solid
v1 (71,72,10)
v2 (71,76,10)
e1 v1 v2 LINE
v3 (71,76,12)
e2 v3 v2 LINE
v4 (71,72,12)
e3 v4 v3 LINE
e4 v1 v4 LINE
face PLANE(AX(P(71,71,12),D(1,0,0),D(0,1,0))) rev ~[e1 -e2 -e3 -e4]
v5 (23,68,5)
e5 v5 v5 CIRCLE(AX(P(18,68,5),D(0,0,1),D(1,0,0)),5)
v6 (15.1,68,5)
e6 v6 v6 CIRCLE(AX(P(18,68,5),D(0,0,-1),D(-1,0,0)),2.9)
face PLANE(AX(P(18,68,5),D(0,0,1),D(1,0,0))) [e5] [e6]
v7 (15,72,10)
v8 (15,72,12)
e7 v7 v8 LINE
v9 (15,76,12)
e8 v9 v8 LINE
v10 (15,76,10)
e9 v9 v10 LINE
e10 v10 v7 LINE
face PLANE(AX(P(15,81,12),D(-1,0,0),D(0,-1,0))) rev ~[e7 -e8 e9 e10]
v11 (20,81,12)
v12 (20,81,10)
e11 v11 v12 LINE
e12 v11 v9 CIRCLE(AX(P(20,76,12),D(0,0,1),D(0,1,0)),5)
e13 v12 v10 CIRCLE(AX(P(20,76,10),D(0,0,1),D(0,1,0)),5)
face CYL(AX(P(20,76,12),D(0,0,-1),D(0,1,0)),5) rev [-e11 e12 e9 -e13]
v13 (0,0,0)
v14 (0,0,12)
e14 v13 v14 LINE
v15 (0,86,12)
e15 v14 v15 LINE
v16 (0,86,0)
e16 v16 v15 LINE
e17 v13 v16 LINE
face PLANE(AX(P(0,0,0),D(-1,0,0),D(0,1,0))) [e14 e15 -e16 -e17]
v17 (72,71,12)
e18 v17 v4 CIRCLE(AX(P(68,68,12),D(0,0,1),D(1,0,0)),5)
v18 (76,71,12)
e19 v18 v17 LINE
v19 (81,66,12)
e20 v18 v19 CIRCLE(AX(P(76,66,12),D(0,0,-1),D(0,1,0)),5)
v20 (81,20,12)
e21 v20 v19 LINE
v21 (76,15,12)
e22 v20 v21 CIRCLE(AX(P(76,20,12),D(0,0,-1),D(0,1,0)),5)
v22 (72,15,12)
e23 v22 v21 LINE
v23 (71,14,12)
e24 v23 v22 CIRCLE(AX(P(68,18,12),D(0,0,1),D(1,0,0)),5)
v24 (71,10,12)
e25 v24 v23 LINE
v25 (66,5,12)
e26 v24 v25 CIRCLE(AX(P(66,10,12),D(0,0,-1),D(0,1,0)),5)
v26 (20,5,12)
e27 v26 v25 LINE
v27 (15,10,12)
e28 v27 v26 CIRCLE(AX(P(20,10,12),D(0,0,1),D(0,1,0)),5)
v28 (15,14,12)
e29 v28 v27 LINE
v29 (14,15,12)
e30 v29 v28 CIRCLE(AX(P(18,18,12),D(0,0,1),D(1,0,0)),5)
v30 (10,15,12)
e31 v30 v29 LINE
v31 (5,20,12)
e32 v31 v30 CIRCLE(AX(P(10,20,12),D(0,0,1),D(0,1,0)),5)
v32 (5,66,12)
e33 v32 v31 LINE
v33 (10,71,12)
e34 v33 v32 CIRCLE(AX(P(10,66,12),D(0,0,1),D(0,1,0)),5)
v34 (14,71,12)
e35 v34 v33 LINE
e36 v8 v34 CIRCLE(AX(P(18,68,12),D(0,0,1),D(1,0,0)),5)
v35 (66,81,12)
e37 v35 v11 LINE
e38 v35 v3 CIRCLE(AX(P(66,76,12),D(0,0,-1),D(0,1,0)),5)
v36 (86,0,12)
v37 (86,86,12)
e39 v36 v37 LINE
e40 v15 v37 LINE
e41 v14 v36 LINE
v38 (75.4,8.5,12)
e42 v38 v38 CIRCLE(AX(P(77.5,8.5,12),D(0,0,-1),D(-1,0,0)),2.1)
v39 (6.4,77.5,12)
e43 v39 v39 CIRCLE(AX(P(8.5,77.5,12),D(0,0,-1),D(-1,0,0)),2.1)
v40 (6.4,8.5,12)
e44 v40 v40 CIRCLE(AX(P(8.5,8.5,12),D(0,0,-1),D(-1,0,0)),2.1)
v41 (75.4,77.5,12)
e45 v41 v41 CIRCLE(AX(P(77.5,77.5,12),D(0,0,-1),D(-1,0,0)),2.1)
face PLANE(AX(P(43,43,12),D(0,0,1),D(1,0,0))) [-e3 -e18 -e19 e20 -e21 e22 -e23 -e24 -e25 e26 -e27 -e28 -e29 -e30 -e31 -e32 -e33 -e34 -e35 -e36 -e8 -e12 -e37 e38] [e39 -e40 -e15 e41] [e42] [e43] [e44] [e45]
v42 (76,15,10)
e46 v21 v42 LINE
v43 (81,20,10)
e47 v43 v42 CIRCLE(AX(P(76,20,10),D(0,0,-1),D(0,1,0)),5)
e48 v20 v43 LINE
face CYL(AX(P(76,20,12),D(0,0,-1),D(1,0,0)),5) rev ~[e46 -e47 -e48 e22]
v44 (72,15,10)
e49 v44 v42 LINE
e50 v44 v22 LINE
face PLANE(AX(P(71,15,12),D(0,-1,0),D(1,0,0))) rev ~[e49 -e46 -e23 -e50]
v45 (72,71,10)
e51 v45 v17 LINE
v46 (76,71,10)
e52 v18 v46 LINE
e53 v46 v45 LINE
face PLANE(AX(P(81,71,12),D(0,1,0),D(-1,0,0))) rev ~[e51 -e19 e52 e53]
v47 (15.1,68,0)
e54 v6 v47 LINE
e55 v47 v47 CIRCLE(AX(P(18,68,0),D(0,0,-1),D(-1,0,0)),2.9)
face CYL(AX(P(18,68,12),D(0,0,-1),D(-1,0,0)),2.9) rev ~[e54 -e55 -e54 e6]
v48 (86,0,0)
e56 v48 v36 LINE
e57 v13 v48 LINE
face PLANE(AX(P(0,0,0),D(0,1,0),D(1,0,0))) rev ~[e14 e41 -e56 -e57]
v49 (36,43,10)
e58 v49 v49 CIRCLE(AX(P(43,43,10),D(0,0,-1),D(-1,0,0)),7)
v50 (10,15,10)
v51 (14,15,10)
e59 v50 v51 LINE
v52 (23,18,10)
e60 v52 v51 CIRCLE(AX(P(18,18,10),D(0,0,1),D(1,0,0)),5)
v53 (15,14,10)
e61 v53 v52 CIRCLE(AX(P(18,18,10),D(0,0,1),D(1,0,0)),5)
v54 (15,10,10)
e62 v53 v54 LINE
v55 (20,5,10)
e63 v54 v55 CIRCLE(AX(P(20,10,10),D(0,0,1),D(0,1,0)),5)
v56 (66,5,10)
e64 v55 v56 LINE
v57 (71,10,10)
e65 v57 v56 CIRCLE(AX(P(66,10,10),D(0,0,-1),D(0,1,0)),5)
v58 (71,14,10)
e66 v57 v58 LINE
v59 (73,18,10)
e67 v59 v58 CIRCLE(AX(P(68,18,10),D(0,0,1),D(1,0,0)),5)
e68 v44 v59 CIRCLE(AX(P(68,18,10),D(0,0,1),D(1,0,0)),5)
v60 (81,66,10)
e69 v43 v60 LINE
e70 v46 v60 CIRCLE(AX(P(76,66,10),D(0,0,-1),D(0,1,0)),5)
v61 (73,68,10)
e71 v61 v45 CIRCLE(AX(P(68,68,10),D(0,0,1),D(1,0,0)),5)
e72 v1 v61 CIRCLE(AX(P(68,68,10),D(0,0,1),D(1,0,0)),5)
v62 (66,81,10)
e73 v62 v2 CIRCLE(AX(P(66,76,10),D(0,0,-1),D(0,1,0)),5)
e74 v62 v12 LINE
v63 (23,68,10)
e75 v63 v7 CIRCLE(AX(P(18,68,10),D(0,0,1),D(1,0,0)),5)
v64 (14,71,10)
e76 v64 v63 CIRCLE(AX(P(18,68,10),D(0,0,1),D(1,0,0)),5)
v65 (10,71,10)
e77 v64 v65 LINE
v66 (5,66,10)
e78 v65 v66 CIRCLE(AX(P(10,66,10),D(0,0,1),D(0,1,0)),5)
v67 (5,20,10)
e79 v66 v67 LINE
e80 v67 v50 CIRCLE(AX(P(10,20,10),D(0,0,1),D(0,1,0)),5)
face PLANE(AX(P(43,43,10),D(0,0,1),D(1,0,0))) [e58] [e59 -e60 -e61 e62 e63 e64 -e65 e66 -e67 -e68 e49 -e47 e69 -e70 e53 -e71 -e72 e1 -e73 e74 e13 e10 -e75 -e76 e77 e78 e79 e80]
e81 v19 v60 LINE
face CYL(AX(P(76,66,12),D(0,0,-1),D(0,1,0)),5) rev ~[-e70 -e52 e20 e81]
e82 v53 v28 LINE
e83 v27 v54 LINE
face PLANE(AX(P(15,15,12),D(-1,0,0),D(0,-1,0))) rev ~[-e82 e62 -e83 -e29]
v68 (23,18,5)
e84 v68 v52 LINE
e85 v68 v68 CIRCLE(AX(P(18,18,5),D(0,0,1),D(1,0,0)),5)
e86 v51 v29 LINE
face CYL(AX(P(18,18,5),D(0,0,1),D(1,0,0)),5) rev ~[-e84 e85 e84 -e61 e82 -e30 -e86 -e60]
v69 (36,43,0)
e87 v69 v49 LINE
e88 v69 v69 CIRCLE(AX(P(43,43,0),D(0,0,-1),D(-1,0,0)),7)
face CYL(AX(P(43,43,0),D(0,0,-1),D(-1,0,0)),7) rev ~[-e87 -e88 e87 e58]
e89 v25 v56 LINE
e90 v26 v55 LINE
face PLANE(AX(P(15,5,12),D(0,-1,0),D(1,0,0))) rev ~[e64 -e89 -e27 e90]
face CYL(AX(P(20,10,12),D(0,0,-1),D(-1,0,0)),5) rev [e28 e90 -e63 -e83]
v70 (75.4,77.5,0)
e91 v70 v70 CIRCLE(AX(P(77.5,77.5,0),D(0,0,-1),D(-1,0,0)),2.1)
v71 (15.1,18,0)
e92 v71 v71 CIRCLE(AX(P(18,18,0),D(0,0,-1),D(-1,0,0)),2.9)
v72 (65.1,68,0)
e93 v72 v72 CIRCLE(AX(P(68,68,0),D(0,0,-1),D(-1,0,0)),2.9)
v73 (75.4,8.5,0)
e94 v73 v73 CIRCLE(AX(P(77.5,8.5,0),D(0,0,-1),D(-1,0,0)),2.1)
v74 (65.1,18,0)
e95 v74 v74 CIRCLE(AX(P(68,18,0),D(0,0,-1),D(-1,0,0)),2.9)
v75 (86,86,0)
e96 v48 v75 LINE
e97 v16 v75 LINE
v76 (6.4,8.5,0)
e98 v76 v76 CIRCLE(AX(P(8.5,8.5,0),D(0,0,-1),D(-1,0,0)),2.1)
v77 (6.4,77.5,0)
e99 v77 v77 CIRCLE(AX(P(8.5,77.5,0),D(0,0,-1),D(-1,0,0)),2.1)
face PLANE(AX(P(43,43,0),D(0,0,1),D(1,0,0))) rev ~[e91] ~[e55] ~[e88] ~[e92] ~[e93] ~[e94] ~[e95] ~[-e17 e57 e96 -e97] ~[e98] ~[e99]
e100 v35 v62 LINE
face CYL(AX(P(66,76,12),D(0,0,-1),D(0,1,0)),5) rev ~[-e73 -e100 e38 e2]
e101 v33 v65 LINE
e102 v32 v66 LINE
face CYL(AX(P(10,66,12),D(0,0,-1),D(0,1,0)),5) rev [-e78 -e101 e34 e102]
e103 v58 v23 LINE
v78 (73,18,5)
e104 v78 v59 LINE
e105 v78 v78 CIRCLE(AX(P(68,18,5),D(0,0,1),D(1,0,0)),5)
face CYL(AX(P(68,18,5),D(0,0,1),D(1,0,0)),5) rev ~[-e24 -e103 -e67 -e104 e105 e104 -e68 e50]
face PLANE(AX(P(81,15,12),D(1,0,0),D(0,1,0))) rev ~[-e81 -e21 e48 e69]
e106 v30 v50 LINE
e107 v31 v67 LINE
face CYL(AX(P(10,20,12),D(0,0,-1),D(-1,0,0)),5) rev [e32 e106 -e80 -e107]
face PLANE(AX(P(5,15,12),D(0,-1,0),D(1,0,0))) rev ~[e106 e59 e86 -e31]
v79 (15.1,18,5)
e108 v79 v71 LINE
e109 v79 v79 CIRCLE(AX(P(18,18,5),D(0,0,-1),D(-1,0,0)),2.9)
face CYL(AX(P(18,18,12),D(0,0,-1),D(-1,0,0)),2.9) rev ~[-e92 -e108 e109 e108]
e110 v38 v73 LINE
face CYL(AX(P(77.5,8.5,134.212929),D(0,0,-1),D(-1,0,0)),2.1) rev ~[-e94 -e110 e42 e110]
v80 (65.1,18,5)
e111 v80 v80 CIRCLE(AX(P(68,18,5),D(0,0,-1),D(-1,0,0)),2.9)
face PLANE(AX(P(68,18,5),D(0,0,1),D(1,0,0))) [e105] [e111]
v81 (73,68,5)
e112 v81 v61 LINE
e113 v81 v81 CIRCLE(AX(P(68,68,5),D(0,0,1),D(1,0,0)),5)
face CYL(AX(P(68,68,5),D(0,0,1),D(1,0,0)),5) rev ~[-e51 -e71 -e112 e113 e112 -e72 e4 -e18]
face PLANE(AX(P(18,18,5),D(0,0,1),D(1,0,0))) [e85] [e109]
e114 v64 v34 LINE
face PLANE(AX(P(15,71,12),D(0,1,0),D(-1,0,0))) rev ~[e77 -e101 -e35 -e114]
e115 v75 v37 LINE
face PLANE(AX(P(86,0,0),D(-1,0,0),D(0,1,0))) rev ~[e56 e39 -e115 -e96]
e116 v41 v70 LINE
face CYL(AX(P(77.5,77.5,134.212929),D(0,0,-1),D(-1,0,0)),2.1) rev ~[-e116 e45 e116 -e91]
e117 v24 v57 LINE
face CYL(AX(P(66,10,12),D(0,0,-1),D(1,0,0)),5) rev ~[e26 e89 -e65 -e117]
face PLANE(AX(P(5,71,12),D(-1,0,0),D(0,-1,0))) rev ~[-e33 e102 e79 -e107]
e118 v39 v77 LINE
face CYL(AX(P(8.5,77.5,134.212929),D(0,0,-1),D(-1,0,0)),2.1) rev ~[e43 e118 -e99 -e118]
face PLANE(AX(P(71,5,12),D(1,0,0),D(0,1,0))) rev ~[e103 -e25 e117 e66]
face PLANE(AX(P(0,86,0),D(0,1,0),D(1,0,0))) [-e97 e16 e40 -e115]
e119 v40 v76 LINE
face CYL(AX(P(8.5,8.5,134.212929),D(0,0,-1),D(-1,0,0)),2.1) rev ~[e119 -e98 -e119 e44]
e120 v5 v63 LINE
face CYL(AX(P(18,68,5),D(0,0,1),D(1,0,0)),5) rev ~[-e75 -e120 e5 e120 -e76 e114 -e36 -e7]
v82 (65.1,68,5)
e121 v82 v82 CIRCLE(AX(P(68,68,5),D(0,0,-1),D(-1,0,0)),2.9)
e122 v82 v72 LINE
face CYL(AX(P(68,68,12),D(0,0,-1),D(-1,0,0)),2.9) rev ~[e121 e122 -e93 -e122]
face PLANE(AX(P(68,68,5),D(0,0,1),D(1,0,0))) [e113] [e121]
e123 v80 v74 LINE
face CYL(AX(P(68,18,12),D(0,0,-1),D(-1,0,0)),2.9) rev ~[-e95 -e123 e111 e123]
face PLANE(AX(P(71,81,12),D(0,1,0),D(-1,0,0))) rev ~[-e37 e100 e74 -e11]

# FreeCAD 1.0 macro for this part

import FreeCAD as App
import Part
import Sketcher

V = App.Vector


def edges_at(feature, points):
    """Names of the edges that pass closest to the given points."""
    edges = feature.Shape.Edges
    near = lambda p: min(range(len(edges)), key=lambda i: edges[i].distToShape(Part.Vertex(*p))[0])
    return sorted({f"Edge{near(p) + 1}" for p in points})

doc = App.newDocument("Part")
params = doc.addObject("Spreadsheet::Sheet", "Params")
for row, (alias, value) in enumerate([
    ("sketch1_width", "86 mm"),
    ("pad1_length", "12 mm"),
    ("sketch2_width", "56 mm"),
    ("sketch2_width2", "10 mm"),
    ("pocket1_length", "2 mm"),
    ("sketch3_diameter", "14 mm"),
    ("sketch4_diameter", "4.2 mm"),
    ("hole_diameter", "4.2 mm"),
    ("fillet_radius", "5 mm"),
    ("sketch5_diameter", "5.8 mm"),
    ("hole2_diameter", "5.8 mm"),
    ("hole2_cbore_diameter", "10 mm"),
    ("hole2_cbore_depth", "7 mm"),
], start=1):
    params.set(f"A{row}", alias)
    params.set(f"B{row}", "=" + value)
    params.setAlias(f"B{row}", alias)

body = doc.addObject("PartDesign::Body", "Body")

# Sketch on XY plane
sketch1 = body.newObject("Sketcher::SketchObject", "Sketch")
sketch1.AttachmentSupport = (doc.getObject("XY_Plane"), [""])
sketch1.MapMode = "FlatFace"
sketch1.addGeometry([
    Part.LineSegment(V(0, 86, 0), V(0, 0, 0)),
    Part.LineSegment(V(0, 0, 0), V(86, 0, 0)),
    Part.LineSegment(V(86, 0, 0), V(86, 86, 0)),
    Part.LineSegment(V(86, 86, 0), V(0, 86, 0)),
], False)
sketch1.addConstraint([
    Sketcher.Constraint("Coincident", 0, 2, 1, 1),
    Sketcher.Constraint("Coincident", 1, 2, 2, 1),
    Sketcher.Constraint("Coincident", 2, 2, 3, 1),
    Sketcher.Constraint("Coincident", 3, 2, 0, 1),
    Sketcher.Constraint("Vertical", 0),
    Sketcher.Constraint("Horizontal", 1),
    Sketcher.Constraint("Vertical", 2),
    Sketcher.Constraint("Horizontal", 3),
    Sketcher.Constraint("Coincident", 0, 2, -1, 1),
    Sketcher.Constraint("Equal", 3, 0),
    Sketcher.Constraint("DistanceX", 1, 1, 1, 2, 86.0),
])
sketch1.setExpression("Constraints[10]", "Params.sketch1_width")
pad1 = body.newObject("PartDesign::Pad", "Pad")
pad1.Profile = sketch1
pad1.setExpression("Length", "Params.pad1_length")

# Sketch on XY plane
sketch2 = body.newObject("Sketcher::SketchObject", "Sketch001")
sketch2.AttachmentSupport = (doc.getObject("XY_Plane"), [""])
sketch2.MapMode = "FlatFace"
sketch2.AttachmentOffset = App.Placement(V(0, 0, 12), App.Rotation())
sketch2.addGeometry([
    Part.LineSegment(V(71, 81, 0), V(15, 81, 0)),  # 0
    Part.LineSegment(V(15, 81, 0), V(15, 71, 0)),  # 1
    Part.LineSegment(V(15, 71, 0), V(5, 71, 0)),  # 2
    Part.LineSegment(V(5, 71, 0), V(5, 15, 0)),  # 3
    Part.LineSegment(V(5, 15, 0), V(15, 15, 0)),  # 4
    Part.LineSegment(V(15, 15, 0), V(15, 5, 0)),  # 5
    Part.LineSegment(V(15, 5, 0), V(71, 5, 0)),  # 6
    Part.LineSegment(V(71, 5, 0), V(71, 15, 0)),  # 7
    Part.LineSegment(V(71, 15, 0), V(81, 15, 0)),  # 8
    Part.LineSegment(V(81, 15, 0), V(81, 71, 0)),  # 9
    Part.LineSegment(V(81, 71, 0), V(71, 71, 0)),  # 10
    Part.LineSegment(V(71, 71, 0), V(71, 81, 0)),  # 11
], False)
sketch2.addConstraint([
    Sketcher.Constraint("Coincident", 0, 2, 1, 1),
    Sketcher.Constraint("Coincident", 1, 2, 2, 1),
    Sketcher.Constraint("Coincident", 2, 2, 3, 1),
    Sketcher.Constraint("Coincident", 3, 2, 4, 1),
    Sketcher.Constraint("Coincident", 4, 2, 5, 1),
    Sketcher.Constraint("Coincident", 5, 2, 6, 1),
    Sketcher.Constraint("Coincident", 6, 2, 7, 1),
    Sketcher.Constraint("Coincident", 7, 2, 8, 1),
    Sketcher.Constraint("Coincident", 8, 2, 9, 1),
    Sketcher.Constraint("Coincident", 9, 2, 10, 1),
    Sketcher.Constraint("Coincident", 10, 2, 11, 1),
    Sketcher.Constraint("Coincident", 11, 2, 0, 1),
    Sketcher.Constraint("Horizontal", 0),
    Sketcher.Constraint("Vertical", 1),
    Sketcher.Constraint("Horizontal", 2),
    Sketcher.Constraint("Vertical", 3),
    Sketcher.Constraint("Horizontal", 4),
    Sketcher.Constraint("Vertical", 5),
    Sketcher.Constraint("Horizontal", 6),
    Sketcher.Constraint("Vertical", 7),
    Sketcher.Constraint("Horizontal", 8),
    Sketcher.Constraint("Vertical", 9),
    Sketcher.Constraint("Horizontal", 10),
    Sketcher.Constraint("Vertical", 11),
    Sketcher.Constraint("Horizontal", 4, 2, 7, 2),
    Sketcher.Constraint("Horizontal", 2, 2, 9, 2),
    Sketcher.Constraint("Vertical", 1, 2, 4, 2),
    Sketcher.Constraint("Vertical", 7, 2, 10, 2),
    Sketcher.Constraint("Equal", 4, 8),
    Sketcher.Constraint("Equal", 10, 1),
    Sketcher.Constraint("Equal", 6, 3),
    Sketcher.Constraint("Equal", 1, 5),
    Sketcher.Constraint("DistanceX", 0, 2, 0, 1, 56.0),
    Sketcher.Constraint("DistanceX", 2, 2, 2, 1, 10.0),
    Sketcher.Constraint("DistanceX", -1, 1, 0, 2, 15.0),
    Sketcher.Constraint("DistanceY", -1, 1, 0, 2, 81.0),
])
sketch2.setExpression("Constraints[32]", "Params.sketch2_width")
sketch2.setExpression("Constraints[33]", "Params.sketch2_width2")
pocket1 = body.newObject("PartDesign::Pocket", "Pocket")
pocket1.Profile = sketch2
pocket1.setExpression("Length", "Params.pocket1_length")

# Sketch on XY plane
sketch3 = body.newObject("Sketcher::SketchObject", "Sketch002")
sketch3.AttachmentSupport = (doc.getObject("XY_Plane"), [""])
sketch3.MapMode = "FlatFace"
sketch3.addGeometry(Part.Circle(V(43, 43, 0), V(0, 0, 1), 7), False)
sketch3.addConstraint([
    Sketcher.Constraint("Diameter", 0, 14.0),
    Sketcher.Constraint("DistanceX", -1, 1, 0, 3, 43.0),
    Sketcher.Constraint("DistanceY", -1, 1, 0, 3, 43.0),
])
sketch3.setExpression("Constraints[0]", "Params.sketch3_diameter")
pocket2 = body.newObject("PartDesign::Pocket", "Pocket001")
pocket2.Profile = sketch3
pocket2.Type = "ThroughAll"
pocket2.Reversed = True

# Sketch on XY plane
sketch4 = body.newObject("Sketcher::SketchObject", "Sketch003")
sketch4.AttachmentSupport = (doc.getObject("XY_Plane"), [""])
sketch4.MapMode = "FlatFace"
sketch4.AttachmentOffset = App.Placement(V(0, 0, 12), App.Rotation())
sketch4.addGeometry([
    Part.Circle(V(77.5, 77.5, 0), V(0, 0, 1), 2.1),
    Part.Circle(V(8.5, 77.5, 0), V(0, 0, 1), 2.1),
    Part.Circle(V(8.5, 8.5, 0), V(0, 0, 1), 2.1),
    Part.Circle(V(77.5, 8.5, 0), V(0, 0, 1), 2.1),
], False)
sketch4.addConstraint([
    Sketcher.Constraint("Equal", 0, 1),
    Sketcher.Constraint("Equal", 1, 2),
    Sketcher.Constraint("Equal", 2, 3),
    Sketcher.Constraint("Horizontal", 0, 3, 1, 3),
    Sketcher.Constraint("Horizontal", 2, 3, 3, 3),
    Sketcher.Constraint("Vertical", 1, 3, 2, 3),
    Sketcher.Constraint("Vertical", 0, 3, 3, 3),
    Sketcher.Constraint("Diameter", 0, 4.2),
    Sketcher.Constraint("DistanceX", 1, 3, 0, 3, 69.0),
    Sketcher.Constraint("DistanceY", 2, 3, 1, 3, 69.0),
    Sketcher.Constraint("DistanceX", -1, 1, 0, 3, 77.5),
    Sketcher.Constraint("DistanceY", -1, 1, 0, 3, 77.5),
])
sketch4.setExpression("Constraints[7]", "Params.sketch4_diameter")
doc.recompute()
hole = body.newObject("PartDesign::Hole", "Hole")
hole.Profile = sketch4
hole.ThreadType = "None"
hole.setExpression("Diameter", "Params.hole_diameter")
hole.DepthType = "ThroughAll"
doc.recompute()

fillet = body.newObject("PartDesign::Fillet", "Fillet")
fillet.Base = (hole, edges_at(hole, [
    (15, 81, 11),
    (71, 81, 11),
    (81, 71, 11),
    (81, 15, 11),
    (71, 5, 11),
    (15, 5, 11),
    (5, 15, 11),
    (5, 71, 11),
]))
fillet.setExpression("Radius", "Params.fillet_radius")

# Sketch on XY plane
sketch5 = body.newObject("Sketcher::SketchObject", "Sketch004")
sketch5.AttachmentSupport = (doc.getObject("XY_Plane"), [""])
sketch5.MapMode = "FlatFace"
sketch5.AttachmentOffset = App.Placement(V(0, 0, 12), App.Rotation())
sketch5.addGeometry([
    Part.Circle(V(18, 68, 0), V(0, 0, 1), 2.9),
    Part.Circle(V(68, 68, 0), V(0, 0, 1), 2.9),
    Part.Circle(V(18, 18, 0), V(0, 0, 1), 2.9),
    Part.Circle(V(68, 18, 0), V(0, 0, 1), 2.9),
], False)
sketch5.addConstraint([
    Sketcher.Constraint("Equal", 0, 1),
    Sketcher.Constraint("Equal", 1, 2),
    Sketcher.Constraint("Equal", 2, 3),
    Sketcher.Constraint("Horizontal", 0, 3, 1, 3),
    Sketcher.Constraint("Horizontal", 2, 3, 3, 3),
    Sketcher.Constraint("Vertical", 0, 3, 2, 3),
    Sketcher.Constraint("Vertical", 1, 3, 3, 3),
    Sketcher.Constraint("Diameter", 0, 5.8),
    Sketcher.Constraint("DistanceX", -1, 1, 0, 3, 18.0),
    Sketcher.Constraint("DistanceY", -1, 1, 0, 3, 68.0),
    Sketcher.Constraint("DistanceX", -1, 1, 1, 3, 68.0),
    Sketcher.Constraint("DistanceY", -1, 1, 2, 3, 18.0),
])
sketch5.setExpression("Constraints[7]", "Params.sketch5_diameter")
doc.recompute()
hole2 = body.newObject("PartDesign::Hole", "Hole001")
hole2.Profile = sketch5
hole2.ThreadType = "None"
hole2.setExpression("Diameter", "Params.hole2_diameter")
hole2.DepthType = "ThroughAll"
hole2.HoleCutType = "Counterbore"
hole2.setExpression("HoleCutDiameter", "Params.hole2_cbore_diameter")
hole2.setExpression("HoleCutDepth", "Params.hole2_cbore_depth")

doc.recompute()
